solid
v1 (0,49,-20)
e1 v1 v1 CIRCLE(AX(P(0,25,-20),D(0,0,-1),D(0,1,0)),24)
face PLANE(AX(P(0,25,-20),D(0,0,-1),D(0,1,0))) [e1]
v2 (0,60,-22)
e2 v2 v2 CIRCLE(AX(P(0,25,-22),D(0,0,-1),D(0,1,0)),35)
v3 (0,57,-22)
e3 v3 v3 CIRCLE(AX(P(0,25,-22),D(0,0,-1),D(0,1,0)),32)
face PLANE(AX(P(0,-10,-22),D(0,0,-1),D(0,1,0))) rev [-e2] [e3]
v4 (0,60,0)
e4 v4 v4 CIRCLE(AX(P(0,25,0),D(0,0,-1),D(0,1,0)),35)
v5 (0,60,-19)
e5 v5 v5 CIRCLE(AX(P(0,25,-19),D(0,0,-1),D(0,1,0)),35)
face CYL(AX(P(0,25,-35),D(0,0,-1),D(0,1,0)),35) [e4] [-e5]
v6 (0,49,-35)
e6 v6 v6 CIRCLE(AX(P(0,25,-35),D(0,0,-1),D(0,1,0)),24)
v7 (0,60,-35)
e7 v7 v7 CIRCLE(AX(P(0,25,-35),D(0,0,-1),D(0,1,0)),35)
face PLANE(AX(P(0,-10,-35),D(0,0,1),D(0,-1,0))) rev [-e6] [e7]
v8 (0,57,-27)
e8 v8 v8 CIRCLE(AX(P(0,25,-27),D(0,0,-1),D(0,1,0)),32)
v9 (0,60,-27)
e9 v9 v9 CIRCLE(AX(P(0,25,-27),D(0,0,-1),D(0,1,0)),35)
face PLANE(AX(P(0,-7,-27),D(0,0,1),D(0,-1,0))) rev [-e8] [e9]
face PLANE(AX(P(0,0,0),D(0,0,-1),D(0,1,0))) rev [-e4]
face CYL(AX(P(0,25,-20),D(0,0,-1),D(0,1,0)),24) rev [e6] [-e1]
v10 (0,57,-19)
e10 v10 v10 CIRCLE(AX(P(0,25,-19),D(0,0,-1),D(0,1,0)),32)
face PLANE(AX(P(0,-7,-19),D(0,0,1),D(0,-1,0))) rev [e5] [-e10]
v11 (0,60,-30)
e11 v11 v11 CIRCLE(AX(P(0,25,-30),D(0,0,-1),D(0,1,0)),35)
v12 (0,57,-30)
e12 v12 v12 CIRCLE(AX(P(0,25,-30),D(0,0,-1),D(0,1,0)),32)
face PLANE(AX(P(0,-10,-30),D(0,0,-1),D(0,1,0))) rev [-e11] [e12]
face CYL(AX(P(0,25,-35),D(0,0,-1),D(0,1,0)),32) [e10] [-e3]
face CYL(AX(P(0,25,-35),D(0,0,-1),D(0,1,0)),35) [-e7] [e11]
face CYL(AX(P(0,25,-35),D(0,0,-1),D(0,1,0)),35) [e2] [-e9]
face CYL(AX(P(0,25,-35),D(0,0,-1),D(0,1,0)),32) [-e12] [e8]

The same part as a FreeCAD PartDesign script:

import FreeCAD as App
import Part
import Sketcher

doc = App.newDocument("Part")
body = doc.addObject("PartDesign::Body", "Body")

# Sketch on YZ plane
sketch1 = body.newObject("Sketcher::SketchObject", "Sketch")
sketch1.AttachmentSupport = (doc.getObject("YZ_Plane"), [""])
sketch1.MapMode = "FlatFace"
sketch1.addGeometry([
    Part.LineSegment(App.Vector(0, 0, 0), App.Vector(-10, 0, 0)),  # 0
    Part.LineSegment(App.Vector(-10, 0, 0), App.Vector(-10, -19, 0)),  # 1
    Part.LineSegment(App.Vector(-10, -19, 0), App.Vector(-7, -19, 0)),  # 2
    Part.LineSegment(App.Vector(-7, -19, 0), App.Vector(-7, -22, 0)),  # 3
    Part.LineSegment(App.Vector(-7, -22, 0), App.Vector(-10, -22, 0)),  # 4
    Part.LineSegment(App.Vector(-10, -22, 0), App.Vector(-10, -27, 0)),  # 5
    Part.LineSegment(App.Vector(-10, -27, 0), App.Vector(-7, -27, 0)),  # 6
    Part.LineSegment(App.Vector(-7, -27, 0), App.Vector(-7, -30, 0)),  # 7
    Part.LineSegment(App.Vector(-7, -30, 0), App.Vector(-10, -30, 0)),  # 8
    Part.LineSegment(App.Vector(-10, -30, 0), App.Vector(-10, -35, 0)),  # 9
    Part.LineSegment(App.Vector(-10, -35, 0), App.Vector(25, -35, 0)),  # 10
    Part.LineSegment(App.Vector(25, -35, 0), App.Vector(25, -15, 0)),  # 11
    Part.LineSegment(App.Vector(25, -15, 0), App.Vector(0, -15, 0)),  # 12
    Part.LineSegment(App.Vector(0, -15, 0), App.Vector(0, 0, 0)),  # 13
], False)
sketch1.addGeometry(Part.LineSegment(App.Vector(25, -35, 0), App.Vector(25, 0, 0)), True)  # axis
sketch1.addConstraint([
    Sketcher.Constraint("Coincident", 0, 2, 1, 1),
    Sketcher.Constraint("Coincident", 1, 2, 2, 1),
    Sketcher.Constraint("Coincident", 2, 2, 3, 1),
    Sketcher.Constraint("Coincident", 3, 2, 4, 1),
    Sketcher.Constraint("Coincident", 4, 2, 5, 1),
    Sketcher.Constraint("Coincident", 5, 2, 6, 1),
    Sketcher.Constraint("Coincident", 6, 2, 7, 1),
    Sketcher.Constraint("Coincident", 7, 2, 8, 1),
    Sketcher.Constraint("Coincident", 8, 2, 9, 1),
    Sketcher.Constraint("Coincident", 9, 2, 10, 1),
    Sketcher.Constraint("Coincident", 10, 2, 11, 1),
    Sketcher.Constraint("Coincident", 11, 2, 12, 1),
    Sketcher.Constraint("Coincident", 12, 2, 13, 1),
    Sketcher.Constraint("Coincident", 13, 2, 0, 1),
    Sketcher.Constraint("Horizontal", 0),
    Sketcher.Constraint("Vertical", 1),
    Sketcher.Constraint("Horizontal", 2),
    Sketcher.Constraint("Vertical", 3),
    Sketcher.Constraint("Horizontal", 4),
    Sketcher.Constraint("Vertical", 5),
    Sketcher.Constraint("Horizontal", 6),
    Sketcher.Constraint("Vertical", 7),
    Sketcher.Constraint("Horizontal", 8),
    Sketcher.Constraint("Vertical", 9),
    Sketcher.Constraint("Horizontal", 10),
    Sketcher.Constraint("Vertical", 11),
    Sketcher.Constraint("Horizontal", 12),
    Sketcher.Constraint("Vertical", 13),
    Sketcher.Constraint("Vertical", 14),
    Sketcher.Constraint("Coincident", 13, 2, -1, 1),
    Sketcher.Constraint("Coincident", 14, 1, 10, 2),
    Sketcher.Constraint("PointOnObject", 14, 2, -1),
    Sketcher.Constraint("Vertical", 1, 2, 4, 2),
    Sketcher.Constraint("Vertical", 3, 2, 6, 2),
    Sketcher.Constraint("Vertical", 5, 2, 8, 2),
    Sketcher.Constraint("Equal", 8, 3),
    Sketcher.Constraint("Equal", 3, 7),
    Sketcher.Constraint("Equal", 5, 9),
    Sketcher.Constraint("Equal", 10, 14),
    Sketcher.Constraint("DistanceX", 0, 2, 0, 1, 10.0),
    Sketcher.Constraint("DistanceX", 2, 1, 2, 2, 3.0),
    Sketcher.Constraint("DistanceX", 10, 1, 10, 2, 35.0),
    Sketcher.Constraint("DistanceY", 1, 2, 1, 1, 19.0),
    Sketcher.Constraint("DistanceY", 11, 1, 11, 2, 20.0),
])
revolution = body.newObject("PartDesign::Revolution", "Revolution")
revolution.Profile = sketch1
revolution.ReferenceAxis = (sketch1, ["Axis0"])
revolution.Angle = 360

# Sketch on XY plane
sketch2 = body.newObject("Sketcher::SketchObject", "Sketch001")
sketch2.AttachmentSupport = (doc.getObject("XY_Plane"), [""])
sketch2.MapMode = "FlatFace"
sketch2.addGeometry(Part.Circle(App.Vector(0, 25, 0), App.Vector(0, 0, 1), 25), False)
sketch2.addConstraint([
    Sketcher.Constraint("PointOnObject", 0, 3, -2),
    Sketcher.Constraint("Diameter", 0, 50.0),
    Sketcher.Constraint("DistanceY", -1, 1, 0, 3, 25.0),
])
pad1 = body.newObject("PartDesign::Pad", "Pad")
pad1.Profile = sketch2
pad1.Type = "UpToFirst"
pad1.Reversed = True

# Sketch on XY plane
sketch3 = body.newObject("Sketcher::SketchObject", "Sketch002")
sketch3.AttachmentSupport = (doc.getObject("XY_Plane"), [""])
sketch3.MapMode = "FlatFace"
sketch3.AttachmentOffset = App.Placement(App.Vector(0, 0, -35), App.Rotation())
sketch3.addGeometry(Part.Circle(App.Vector(0, 25, 0), App.Vector(0, 0, 1), 24), False)
sketch3.addConstraint([
    Sketcher.Constraint("PointOnObject", 0, 3, -2),
    Sketcher.Constraint("Diameter", 0, 48.0),
    Sketcher.Constraint("DistanceY", -1, 1, 0, 3, 25.0),
])
pocket1 = body.newObject("PartDesign::Pocket", "Pocket")
pocket1.Profile = sketch3
pocket1.Length = 15
pocket1.Reversed = True

doc.recompute()
